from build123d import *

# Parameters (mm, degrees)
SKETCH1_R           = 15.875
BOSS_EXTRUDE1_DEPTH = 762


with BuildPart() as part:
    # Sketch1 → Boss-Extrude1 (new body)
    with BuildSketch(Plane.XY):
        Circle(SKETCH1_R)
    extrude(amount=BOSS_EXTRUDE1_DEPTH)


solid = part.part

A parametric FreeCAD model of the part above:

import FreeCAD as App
import Part
import Sketcher
from FreeCAD import Vector
Q = App.Units.Quantity

doc = App.newDocument("Part")
body = doc.addObject("PartDesign::Body", "Body")

# Sketch on XY plane
sketch1 = body.newObject("Sketcher::SketchObject", "Sketch")
sketch1.AttachmentSupport = (doc.getObject("XY_Plane"), [""])
sketch1.MapMode = "FlatFace"
sketch1.addGeometry(Part.Circle(Vector(0, 0, 0), Vector(0, 0, 1), 15.875), False)
sketch1.addConstraint([
    Sketcher.Constraint("Coincident", 0, 3, -1, 1),
    Sketcher.Constraint("Diameter", 0, Q("1.25 in")),
])
pad1 = body.newObject("PartDesign::Pad", "Pad")
pad1.Profile = sketch1
pad1.Length = Q("30 in")

doc.recompute()
